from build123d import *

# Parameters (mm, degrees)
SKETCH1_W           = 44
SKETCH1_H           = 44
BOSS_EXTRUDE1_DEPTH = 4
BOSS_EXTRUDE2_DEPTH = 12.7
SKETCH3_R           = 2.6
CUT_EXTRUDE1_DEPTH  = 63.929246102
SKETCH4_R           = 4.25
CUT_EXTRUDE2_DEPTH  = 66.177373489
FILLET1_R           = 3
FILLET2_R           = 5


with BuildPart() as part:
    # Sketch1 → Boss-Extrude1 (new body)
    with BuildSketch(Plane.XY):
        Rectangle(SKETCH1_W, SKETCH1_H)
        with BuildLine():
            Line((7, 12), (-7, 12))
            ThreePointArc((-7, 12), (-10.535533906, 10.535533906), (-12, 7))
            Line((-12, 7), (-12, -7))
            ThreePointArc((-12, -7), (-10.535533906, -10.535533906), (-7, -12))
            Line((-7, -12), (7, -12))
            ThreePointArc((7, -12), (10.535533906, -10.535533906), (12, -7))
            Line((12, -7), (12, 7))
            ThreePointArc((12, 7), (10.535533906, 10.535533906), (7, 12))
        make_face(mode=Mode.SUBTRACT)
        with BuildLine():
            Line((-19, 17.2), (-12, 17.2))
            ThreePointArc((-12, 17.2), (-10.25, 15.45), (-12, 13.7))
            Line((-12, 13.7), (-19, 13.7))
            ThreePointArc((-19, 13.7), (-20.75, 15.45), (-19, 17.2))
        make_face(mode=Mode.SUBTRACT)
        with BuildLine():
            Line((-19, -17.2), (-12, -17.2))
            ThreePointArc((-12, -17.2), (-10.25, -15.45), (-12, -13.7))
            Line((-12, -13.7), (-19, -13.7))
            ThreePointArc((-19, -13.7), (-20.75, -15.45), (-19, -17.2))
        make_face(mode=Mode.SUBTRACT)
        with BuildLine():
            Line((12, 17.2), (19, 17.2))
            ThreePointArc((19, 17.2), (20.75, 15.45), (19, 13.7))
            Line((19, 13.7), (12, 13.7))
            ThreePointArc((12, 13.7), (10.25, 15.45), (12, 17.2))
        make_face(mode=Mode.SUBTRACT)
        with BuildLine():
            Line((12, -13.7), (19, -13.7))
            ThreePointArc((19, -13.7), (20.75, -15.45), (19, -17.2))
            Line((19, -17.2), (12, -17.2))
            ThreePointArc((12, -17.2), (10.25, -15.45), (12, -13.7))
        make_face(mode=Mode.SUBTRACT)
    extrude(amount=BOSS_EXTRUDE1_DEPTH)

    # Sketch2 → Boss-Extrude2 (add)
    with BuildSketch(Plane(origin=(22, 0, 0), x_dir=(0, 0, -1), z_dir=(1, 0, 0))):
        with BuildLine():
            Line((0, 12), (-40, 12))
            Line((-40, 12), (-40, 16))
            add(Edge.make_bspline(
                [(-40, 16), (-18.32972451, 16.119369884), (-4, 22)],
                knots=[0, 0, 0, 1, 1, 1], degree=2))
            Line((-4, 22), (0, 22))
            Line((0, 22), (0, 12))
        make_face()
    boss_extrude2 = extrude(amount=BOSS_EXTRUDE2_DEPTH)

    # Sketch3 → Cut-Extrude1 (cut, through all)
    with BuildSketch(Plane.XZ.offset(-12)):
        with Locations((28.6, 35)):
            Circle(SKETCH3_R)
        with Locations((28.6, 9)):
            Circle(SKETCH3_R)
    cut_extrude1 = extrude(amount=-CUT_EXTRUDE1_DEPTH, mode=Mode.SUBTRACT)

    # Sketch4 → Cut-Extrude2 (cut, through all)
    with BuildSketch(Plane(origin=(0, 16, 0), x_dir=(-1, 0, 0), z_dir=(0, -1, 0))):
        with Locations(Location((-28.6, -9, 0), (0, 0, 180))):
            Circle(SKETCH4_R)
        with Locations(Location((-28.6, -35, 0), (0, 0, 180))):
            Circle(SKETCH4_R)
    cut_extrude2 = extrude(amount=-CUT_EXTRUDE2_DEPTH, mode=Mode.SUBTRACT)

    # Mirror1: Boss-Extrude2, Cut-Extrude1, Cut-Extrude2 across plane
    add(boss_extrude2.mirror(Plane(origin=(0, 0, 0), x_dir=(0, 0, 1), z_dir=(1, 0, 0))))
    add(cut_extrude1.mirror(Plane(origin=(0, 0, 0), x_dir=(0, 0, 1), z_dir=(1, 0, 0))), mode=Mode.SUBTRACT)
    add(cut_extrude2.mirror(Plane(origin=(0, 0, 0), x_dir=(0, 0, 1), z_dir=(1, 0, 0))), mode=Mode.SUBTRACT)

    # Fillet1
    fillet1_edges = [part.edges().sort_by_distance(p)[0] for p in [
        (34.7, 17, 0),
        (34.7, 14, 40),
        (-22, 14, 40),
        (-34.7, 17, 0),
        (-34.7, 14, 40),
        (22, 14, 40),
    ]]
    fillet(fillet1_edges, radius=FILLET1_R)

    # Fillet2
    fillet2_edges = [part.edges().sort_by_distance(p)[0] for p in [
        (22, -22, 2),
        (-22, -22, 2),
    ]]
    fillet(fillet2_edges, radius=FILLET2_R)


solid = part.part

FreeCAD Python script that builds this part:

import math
import FreeCAD as App
import Part
import Sketcher
from FreeCAD import Vector
Q = App.Units.Quantity


def edges_at(feature, points):
    """Names of the edges that pass closest to the given points."""
    edges = feature.Shape.Edges
    near = lambda p: min(range(len(edges)), key=lambda i: edges[i].distToShape(Part.Vertex(*p))[0])
    return sorted({f"Edge{near(p) + 1}" for p in points})

doc = App.newDocument("Part")
body = doc.addObject("PartDesign::Body", "Body")

# Sketch on XY plane
sketch1 = body.newObject("Sketcher::SketchObject", "Sketch")
sketch1.AttachmentSupport = (doc.getObject("XY_Plane"), [""])
sketch1.MapMode = "FlatFace"
sketch1.addGeometry([
    Part.LineSegment(Vector(-22, 22, 0), Vector(-22, -22, 0)),  # 0
    Part.LineSegment(Vector(-22, -22, 0), Vector(22, -22, 0)),  # 1
    Part.LineSegment(Vector(22, -22, 0), Vector(22, 22, 0)),  # 2
    Part.LineSegment(Vector(22, 22, 0), Vector(-22, 22, 0)),  # 3
    Part.LineSegment(Vector(-12, -17.2, 0), Vector(-19, -17.2, 0)),  # 4
    Part.ArcOfCircle(Part.Circle(Vector(-19, -15.4, 0), Vector(0, 0, 1), 1.8), math.radians(90), math.radians(270)),  # 5
    Part.LineSegment(Vector(-19, -13.7, 0), Vector(-12, -13.7, 0)),  # 6
    Part.ArcOfCircle(Part.Circle(Vector(-12, -15.4, 0), Vector(0, 0, 1), 1.8), math.radians(-90), math.radians(90)),  # 7
    Part.ArcOfCircle(Part.Circle(Vector(12, -15.4, 0), Vector(0, 0, 1), 1.8), math.radians(90), math.radians(270)),  # 8
    Part.LineSegment(Vector(12, -13.7, 0), Vector(19, -13.7, 0)),  # 9
    Part.ArcOfCircle(Part.Circle(Vector(19, -15.4, 0), Vector(0, 0, 1), 1.8), math.radians(-90), math.radians(90)),  # 10
    Part.LineSegment(Vector(19, -17.2, 0), Vector(12, -17.2, 0)),  # 11
    Part.ArcOfCircle(Part.Circle(Vector(-19, 15.4, 0), Vector(0, 0, 1), 1.8), math.radians(90), math.radians(270)),  # 12
    Part.LineSegment(Vector(-19, 17.2, 0), Vector(-12, 17.2, 0)),  # 13
    Part.ArcOfCircle(Part.Circle(Vector(-12, 15.4, 0), Vector(0, 0, 1), 1.8), math.radians(-90), math.radians(90)),  # 14
    Part.LineSegment(Vector(-12, 13.7, 0), Vector(-19, 13.7, 0)),  # 15
    Part.LineSegment(Vector(-7, 12, 0), Vector(7, 12, 0)),  # 16
    Part.ArcOfCircle(Part.Circle(Vector(7, 7, 0), Vector(0, 0, 1), 5), math.radians(0), math.radians(90)),  # 17
    Part.LineSegment(Vector(12, 7, 0), Vector(12, -7, 0)),  # 18
    Part.ArcOfCircle(Part.Circle(Vector(7, -7, 0), Vector(0, 0, 1), 5), math.radians(-90), math.radians(0)),  # 19
    Part.LineSegment(Vector(7, -12, 0), Vector(-7, -12, 0)),  # 20
    Part.ArcOfCircle(Part.Circle(Vector(-7, -7, 0), Vector(0, 0, 1), 5), math.radians(180), math.radians(270)),  # 21
    Part.LineSegment(Vector(-12, -7, 0), Vector(-12, 7, 0)),  # 22
    Part.ArcOfCircle(Part.Circle(Vector(-7, 7, 0), Vector(0, 0, 1), 5), math.radians(90), math.radians(180)),  # 23
    Part.ArcOfCircle(Part.Circle(Vector(12, 15.4, 0), Vector(0, 0, 1), 1.8), math.radians(90), math.radians(270)),  # 24
    Part.LineSegment(Vector(12, 17.2, 0), Vector(19, 17.2, 0)),  # 25
    Part.ArcOfCircle(Part.Circle(Vector(19, 15.4, 0), Vector(0, 0, 1), 1.8), math.radians(-90), math.radians(90)),  # 26
    Part.LineSegment(Vector(19, 13.7, 0), Vector(12, 13.7, 0)),  # 27
], False)
sketch1.addConstraint([
    Sketcher.Constraint("Coincident", 0, 2, 1, 1),
    Sketcher.Constraint("Coincident", 1, 2, 2, 1),
    Sketcher.Constraint("Coincident", 2, 2, 3, 1),
    Sketcher.Constraint("Coincident", 3, 2, 0, 1),
    Sketcher.Constraint("Tangent", 4, 2, 5, 2),
    Sketcher.Constraint("Tangent", 5, 1, 6, 1),
    Sketcher.Constraint("Tangent", 6, 2, 7, 2),
    Sketcher.Constraint("Tangent", 7, 1, 4, 1),
    Sketcher.Constraint("Tangent", 8, 1, 9, 1),
    Sketcher.Constraint("Tangent", 9, 2, 10, 2),
    Sketcher.Constraint("Tangent", 10, 1, 11, 1),
    Sketcher.Constraint("Tangent", 11, 2, 8, 2),
    Sketcher.Constraint("Tangent", 12, 1, 13, 1),
    Sketcher.Constraint("Tangent", 13, 2, 14, 2),
    Sketcher.Constraint("Tangent", 14, 1, 15, 1),
    Sketcher.Constraint("Tangent", 15, 2, 12, 2),
    Sketcher.Constraint("Tangent", 16, 2, 17, 2),
    Sketcher.Constraint("Tangent", 17, 1, 18, 1),
    Sketcher.Constraint("Tangent", 18, 2, 19, 2),
    Sketcher.Constraint("Tangent", 19, 1, 20, 1),
    Sketcher.Constraint("Tangent", 20, 2, 21, 2),
    Sketcher.Constraint("Tangent", 21, 1, 22, 1),
    Sketcher.Constraint("Tangent", 22, 2, 23, 2),
    Sketcher.Constraint("Tangent", 23, 1, 16, 1),
    Sketcher.Constraint("Tangent", 24, 1, 25, 1),
    Sketcher.Constraint("Tangent", 25, 2, 26, 2),
    Sketcher.Constraint("Tangent", 26, 1, 27, 1),
    Sketcher.Constraint("Tangent", 27, 2, 24, 2),
    Sketcher.Constraint("Vertical", 0),
    Sketcher.Constraint("Horizontal", 1),
    Sketcher.Constraint("Vertical", 2),
    Sketcher.Constraint("Horizontal", 3),
    Sketcher.Constraint("Horizontal", 4),
    Sketcher.Constraint("Horizontal", 6),
    Sketcher.Constraint("Horizontal", 9),
    Sketcher.Constraint("Horizontal", 11),
    Sketcher.Constraint("Horizontal", 13),
    Sketcher.Constraint("Horizontal", 15),
    Sketcher.Constraint("Horizontal", 16),
    Sketcher.Constraint("Vertical", 18),
    Sketcher.Constraint("Horizontal", 20),
    Sketcher.Constraint("Vertical", 22),
    Sketcher.Constraint("Horizontal", 25),
    Sketcher.Constraint("Horizontal", 27),
    Sketcher.Constraint("Equal", 7, 8),
    Sketcher.Constraint("Equal", 10, 12),
    Sketcher.Constraint("Equal", 17, 19),
    Sketcher.Constraint("Equal", 19, 21),
    Sketcher.Constraint("Equal", 21, 23),
    Sketcher.Constraint("Equal", 14, 24),
    Sketcher.Constraint("Symmetric", 10, 3, 12, 3, -1, 1),
    Sketcher.Constraint("Symmetric", 17, 3, 21, 3, -1, 1),
    Sketcher.Constraint("Symmetric", 7, 3, 24, 3, -1, 1),
    Sketcher.Constraint("Symmetric", 0, 2, 2, 2, -1, 1),
    Sketcher.Constraint("Symmetric", 7, 3, 8, 3, -2),
    Sketcher.Constraint("Vertical", 5, 3, 12, 3),
    Sketcher.Constraint("Vertical", 7, 3, 14, 3),
    Sketcher.Constraint("Vertical", 10, 3, 26, 3),
    Sketcher.Constraint("Vertical", 11, 2, 17, 1),
    Sketcher.Constraint("Equal", 3, 0),
    Sketcher.Constraint("Equal", 20, 18),
    Sketcher.Constraint("Radius", 17, Q("5 mm")),
    Sketcher.Constraint("DistanceX", 1, 1, 1, 2, Q("44 mm")),
    Sketcher.Constraint("DistanceX", 4, 2, 4, 1, Q("7 mm")),
    Sketcher.Constraint("DistanceX", 16, 1, 16, 2, Q("14 mm")),
    Sketcher.Constraint("Radius", 5, Q("1.75 mm")),
    Sketcher.Constraint("DistanceY", 4, 2, -1, 1, Q("17.2 mm")),
])
pad1 = body.newObject("PartDesign::Pad", "Pad")
pad1.Profile = sketch1
pad1.Length = 4

# Sketch on YZ plane
sketch2 = body.newObject("Sketcher::SketchObject", "Sketch001")
sketch2.AttachmentSupport = (doc.getObject("YZ_Plane"), [""])
sketch2.MapMode = "FlatFace"
sketch2.AttachmentOffset = App.Placement(Vector(0, 0, 22), App.Rotation())
sketch2.addGeometry([
    Part.LineSegment(Vector(12, 40, 0), Vector(12, 0, 0)),  # 0
    Part.LineSegment(Vector(12, 0, 0), Vector(22, 0, 0)),  # 1
    Part.LineSegment(Vector(22, 0, 0), Vector(22, 4, 0)),  # 2
    Part.BSplineCurve([Vector(16, 40, 0), Vector(16.11937, 18.329725, 0), Vector(22, 4, 0)], [3, 3], [0, 1], False, 2, [1, 1, 1], False),  # 3
    Part.LineSegment(Vector(16, 40, 0), Vector(12, 40, 0)),  # 4
], False)
sketch2.addConstraint([
    Sketcher.Constraint("Block", 3),
    Sketcher.Constraint("Coincident", 0, 2, 1, 1),
    Sketcher.Constraint("Coincident", 1, 2, 2, 1),
    Sketcher.Constraint("Coincident", 2, 2, 3, 2),
    Sketcher.Constraint("Coincident", 3, 1, 4, 1),
    Sketcher.Constraint("Coincident", 4, 2, 0, 1),
    Sketcher.Constraint("Vertical", 0),
    Sketcher.Constraint("Horizontal", 1),
    Sketcher.Constraint("Vertical", 2),
    Sketcher.Constraint("Horizontal", 4),
    Sketcher.Constraint("PointOnObject", 0, 2, -1),
    Sketcher.Constraint("DistanceX", 1, 1, 1, 2, Q("10 mm")),
])
pad2 = body.newObject("PartDesign::Pad", "Pad001")
pad2.Profile = sketch2
pad2.Length = 12.7

# Sketch on XZ plane
sketch3 = body.newObject("Sketcher::SketchObject", "Sketch002")
sketch3.AttachmentSupport = (doc.getObject("XZ_Plane"), [""])
sketch3.MapMode = "FlatFace"
sketch3.AttachmentOffset = App.Placement(Vector(0, 0, -12), App.Rotation())
sketch3.addGeometry([
    Part.Circle(Vector(28.6, 35, 0), Vector(0, 0, 1), 2.6),
    Part.Circle(Vector(28.6, 9, 0), Vector(0, 0, 1), 2.6),
], False)
sketch3.addConstraint([
    Sketcher.Constraint("Equal", 0, 1),
    Sketcher.Constraint("Vertical", 0, 3, 1, 3),
    Sketcher.Constraint("Diameter", 0, Q("5.2 mm")),
    Sketcher.Constraint("DistanceY", -1, 1, 0, 3, Q("35 mm")),
    Sketcher.Constraint("DistanceY", -1, 1, 1, 3, Q("9 mm")),
    Sketcher.Constraint("DistanceX", -1, 1, 0, 3, Q("28.6 mm")),
])
pocket1 = body.newObject("PartDesign::Pocket", "Pocket")
pocket1.Profile = sketch3
pocket1.Type = "ThroughAll"

# Sketch on XZ plane
sketch4 = body.newObject("Sketcher::SketchObject", "Sketch003")
sketch4.AttachmentSupport = (doc.getObject("XZ_Plane"), [""])
sketch4.MapMode = "FlatFace"
sketch4.AttachmentOffset = App.Placement(Vector(0, 0, -16), App.Rotation())
sketch4.addGeometry([
    Part.Circle(Vector(28.6, 9, 0), Vector(0, 0, 1), 4.2),
    Part.Circle(Vector(28.6, 35, 0), Vector(0, 0, 1), 4.2),
], False)
sketch4.addConstraint([
    Sketcher.Constraint("Equal", 0, 1),
    Sketcher.Constraint("Vertical", 0, 3, 1, 3),
    Sketcher.Constraint("Diameter", 0, Q("8.5 mm")),
    Sketcher.Constraint("DistanceY", -1, 1, 0, 3, Q("9 mm")),
    Sketcher.Constraint("DistanceY", -1, 1, 1, 3, Q("35 mm")),
    Sketcher.Constraint("DistanceX", -1, 1, 0, 3, Q("28.6 mm")),
])
pocket2 = body.newObject("PartDesign::Pocket", "Pocket001")
pocket2.Profile = sketch4
pocket2.Type = "ThroughAll"
doc.recompute()

mirrored = body.newObject("PartDesign::Mirrored", "Mirrored")
mirrored.Originals = [pad2, pocket1, pocket2]
mirrored.MirrorPlane = (doc.getObject("YZ_Plane"), [""])
body.Tip = mirrored
doc.recompute()

fillet = body.newObject("PartDesign::Fillet", "Fillet")
fillet.Base = (mirrored, edges_at(mirrored, [
    (34.7, 17, 0),
    (34.7, 14, 40),
    (-22, 14, 40),
    (-34.7, 17, 0),
    (-34.7, 14, 40),
    (22, 14, 40),
]))
fillet.Radius = 3
doc.recompute()

fillet2 = body.newObject("PartDesign::Fillet", "Fillet001")
fillet2.Base = (fillet, edges_at(fillet, [(22, -22, 2), (-22, -22, 2)]))
fillet2.Radius = 5

doc.recompute()
